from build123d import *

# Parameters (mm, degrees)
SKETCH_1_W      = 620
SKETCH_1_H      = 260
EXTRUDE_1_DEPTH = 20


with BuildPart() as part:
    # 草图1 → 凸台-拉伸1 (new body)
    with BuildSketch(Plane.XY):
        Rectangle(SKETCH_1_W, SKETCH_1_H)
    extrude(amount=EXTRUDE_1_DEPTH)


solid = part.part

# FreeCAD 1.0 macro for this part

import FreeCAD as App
import Part
import Sketcher
Q = App.Units.Quantity

doc = App.newDocument("Part")
params = doc.addObject("Spreadsheet::Sheet", "Params")
for row, (alias, value) in enumerate([
    ("sketch1_width", "620 mm"),
    ("sketch1_height", "260 mm"),
    ("pad1_length", "20 mm"),
], start=1):
    params.set(f"A{row}", alias)
    params.set(f"B{row}", "=" + value)
    params.setAlias(f"B{row}", alias)

body = doc.addObject("PartDesign::Body", "Body")

sketch1 = body.newObject("Sketcher::SketchObject", "Sketch")
sketch1.AttachmentSupport = (doc.getObject("XY_Plane"), [""])
sketch1.MapMode = "FlatFace"
sketch1.addGeometry([
    Part.LineSegment(App.Vector(-310, 130, 0), App.Vector(-310, -130, 0)),
    Part.LineSegment(App.Vector(-310, -130, 0), App.Vector(310, -130, 0)),
    Part.LineSegment(App.Vector(310, -130, 0), App.Vector(310, 130, 0)),
    Part.LineSegment(App.Vector(310, 130, 0), App.Vector(-310, 130, 0)),
], False)
sketch1.addConstraint([
    Sketcher.Constraint("Coincident", 0, 2, 1, 1),
    Sketcher.Constraint("Coincident", 1, 2, 2, 1),
    Sketcher.Constraint("Coincident", 2, 2, 3, 1),
    Sketcher.Constraint("Coincident", 3, 2, 0, 1),
    Sketcher.Constraint("Vertical", 0),
    Sketcher.Constraint("Horizontal", 1),
    Sketcher.Constraint("Vertical", 2),
    Sketcher.Constraint("Horizontal", 3),
    Sketcher.Constraint("Symmetric", 0, 2, 2, 2, -1, 1),
    Sketcher.Constraint("DistanceX", 1, 1, 1, 2, Q("620 mm")),
    Sketcher.Constraint("DistanceY", 0, 2, 0, 1, Q("260 mm")),
])
sketch1.setExpression("Constraints[9]", "Params.sketch1_width")
sketch1.setExpression("Constraints[10]", "Params.sketch1_height")
pad1 = body.newObject("PartDesign::Pad", "Pad")
pad1.Profile = sketch1
pad1.setExpression("Length", "Params.pad1_length")

doc.recompute()
